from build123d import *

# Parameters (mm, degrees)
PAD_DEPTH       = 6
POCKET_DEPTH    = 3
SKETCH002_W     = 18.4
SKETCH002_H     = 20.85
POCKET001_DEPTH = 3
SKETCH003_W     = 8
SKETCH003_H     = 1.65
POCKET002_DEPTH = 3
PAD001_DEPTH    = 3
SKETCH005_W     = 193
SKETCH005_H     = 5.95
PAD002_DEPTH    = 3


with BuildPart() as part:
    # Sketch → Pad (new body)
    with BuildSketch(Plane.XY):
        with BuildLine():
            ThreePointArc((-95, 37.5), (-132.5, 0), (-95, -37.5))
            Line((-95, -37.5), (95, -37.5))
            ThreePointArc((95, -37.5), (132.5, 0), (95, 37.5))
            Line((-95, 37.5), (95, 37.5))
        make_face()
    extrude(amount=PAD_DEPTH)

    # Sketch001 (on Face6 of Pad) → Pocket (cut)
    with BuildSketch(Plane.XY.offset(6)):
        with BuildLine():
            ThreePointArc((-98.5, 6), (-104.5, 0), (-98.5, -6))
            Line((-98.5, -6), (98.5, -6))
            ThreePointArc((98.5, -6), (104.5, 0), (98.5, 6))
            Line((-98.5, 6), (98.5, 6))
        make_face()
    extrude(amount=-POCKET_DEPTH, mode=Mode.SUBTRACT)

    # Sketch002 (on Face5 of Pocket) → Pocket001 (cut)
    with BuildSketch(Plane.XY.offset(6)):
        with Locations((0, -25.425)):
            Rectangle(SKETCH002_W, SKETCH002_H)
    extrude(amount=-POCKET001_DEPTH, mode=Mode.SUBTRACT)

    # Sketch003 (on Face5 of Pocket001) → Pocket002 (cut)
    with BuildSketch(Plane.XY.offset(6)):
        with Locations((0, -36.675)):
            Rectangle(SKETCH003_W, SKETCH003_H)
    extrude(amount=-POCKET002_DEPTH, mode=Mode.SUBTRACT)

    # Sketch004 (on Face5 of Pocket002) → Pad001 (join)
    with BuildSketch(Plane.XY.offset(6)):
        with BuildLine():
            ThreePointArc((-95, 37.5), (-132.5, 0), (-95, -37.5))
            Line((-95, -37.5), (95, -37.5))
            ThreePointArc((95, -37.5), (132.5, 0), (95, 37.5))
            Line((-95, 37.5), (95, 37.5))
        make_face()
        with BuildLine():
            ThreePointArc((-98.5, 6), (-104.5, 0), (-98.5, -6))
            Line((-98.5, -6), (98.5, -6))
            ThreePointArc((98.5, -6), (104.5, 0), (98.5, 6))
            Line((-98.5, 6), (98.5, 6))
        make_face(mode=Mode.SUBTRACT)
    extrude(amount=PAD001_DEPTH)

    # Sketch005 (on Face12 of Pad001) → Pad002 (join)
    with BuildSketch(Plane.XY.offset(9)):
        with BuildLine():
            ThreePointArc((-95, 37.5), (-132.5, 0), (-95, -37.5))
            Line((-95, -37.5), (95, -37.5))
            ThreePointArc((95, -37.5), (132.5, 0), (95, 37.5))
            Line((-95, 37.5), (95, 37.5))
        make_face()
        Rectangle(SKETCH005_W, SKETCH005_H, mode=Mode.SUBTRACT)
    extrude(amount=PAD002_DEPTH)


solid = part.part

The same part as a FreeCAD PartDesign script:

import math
import FreeCAD as App
import Part
import Sketcher

V = App.Vector
Q = App.Units.Quantity

doc = App.newDocument("Part")
body = doc.addObject("PartDesign::Body", "Body")

# Sketch on XY plane
sketch1 = doc.addObject("Sketcher::SketchObject", "Sketch")
body.addObject(sketch1)
sketch1.AttachmentSupport = (doc.XY_Plane, [""])
sketch1.MapMode = "FlatFace"
sketch1.addGeometry([
    Part.ArcOfCircle(Part.Circle(V(-95, 0, 0), V(0, 0, 1), 37.5), math.radians(90), math.radians(270)),
    Part.LineSegment(V(-95, -37.5, 0), V(95, -37.5, 0)),
    Part.ArcOfCircle(Part.Circle(V(95, 0, 0), V(0, 0, 1), 37.5), math.radians(-90), math.radians(90)),
    Part.LineSegment(V(95, 37.5, 0), V(-95, 37.5, 0)),
], False)
sketch1.addConstraint([
    Sketcher.Constraint("Tangent", 0, 2, 1, 1),
    Sketcher.Constraint("Tangent", 1, 2, 2, 1),
    Sketcher.Constraint("Tangent", 2, 2, 3, 1),
    Sketcher.Constraint("Tangent", 3, 2, 0, 1),
    Sketcher.Constraint("Horizontal", 1),
    Sketcher.Constraint("Horizontal", 3),
    Sketcher.Constraint("Symmetric", 0, 3, 2, 3, -1, 1),
    Sketcher.Constraint("Radius", 0, Q("37.5 mm")),
    Sketcher.Constraint("DistanceX", 1, 1, 1, 2, Q("190 mm")),
])
pad1 = doc.addObject("PartDesign::Pad", "Pad")
body.addObject(pad1)
pad1.Profile = sketch1
pad1.Length = 6

# Sketch on XY plane
sketch2 = doc.addObject("Sketcher::SketchObject", "Sketch001")
body.addObject(sketch2)
sketch2.AttachmentSupport = (doc.XY_Plane, [""])
sketch2.MapMode = "FlatFace"
sketch2.AttachmentOffset = App.Placement(V(0, 0, 6), App.Rotation())
sketch2.addGeometry([
    Part.ArcOfCircle(Part.Circle(V(-98.5, 0, 0), V(0, 0, 1), 6), math.radians(90), math.radians(270)),
    Part.LineSegment(V(-98.5, -6, 0), V(98.5, -6, 0)),
    Part.ArcOfCircle(Part.Circle(V(98.5, 0, 0), V(0, 0, 1), 6), math.radians(-90), math.radians(90)),
    Part.LineSegment(V(98.5, 6, 0), V(-98.5, 6, 0)),
], False)
sketch2.addConstraint([
    Sketcher.Constraint("Tangent", 0, 2, 1, 1),
    Sketcher.Constraint("Tangent", 1, 2, 2, 1),
    Sketcher.Constraint("Tangent", 2, 2, 3, 1),
    Sketcher.Constraint("Tangent", 3, 2, 0, 1),
    Sketcher.Constraint("Horizontal", 1),
    Sketcher.Constraint("Horizontal", 3),
    Sketcher.Constraint("Symmetric", 0, 3, 2, 3, -1, 1),
    Sketcher.Constraint("Radius", 0, Q("6 mm")),
    Sketcher.Constraint("DistanceX", 1, 1, 1, 2, Q("197 mm")),
])
pocket1 = doc.addObject("PartDesign::Pocket", "Pocket")
body.addObject(pocket1)
pocket1.Profile = sketch2
pocket1.Length = 3

# Sketch on XY plane
sketch3 = doc.addObject("Sketcher::SketchObject", "Sketch002")
body.addObject(sketch3)
sketch3.AttachmentSupport = (doc.XY_Plane, [""])
sketch3.MapMode = "FlatFace"
sketch3.AttachmentOffset = App.Placement(V(0, 0, 6), App.Rotation())
sketch3.addGeometry([
    Part.LineSegment(V(-9.2, -15, 0), V(-9.2, -35.85, 0)),
    Part.LineSegment(V(-9.2, -35.85, 0), V(9.2, -35.85, 0)),
    Part.LineSegment(V(9.2, -35.85, 0), V(9.2, -15, 0)),
    Part.LineSegment(V(9.2, -15, 0), V(-9.2, -15, 0)),
], False)
sketch3.addConstraint([
    Sketcher.Constraint("Coincident", 0, 2, 1, 1),
    Sketcher.Constraint("Coincident", 1, 2, 2, 1),
    Sketcher.Constraint("Coincident", 2, 2, 3, 1),
    Sketcher.Constraint("Coincident", 3, 2, 0, 1),
    Sketcher.Constraint("Vertical", 0),
    Sketcher.Constraint("Horizontal", 1),
    Sketcher.Constraint("Vertical", 2),
    Sketcher.Constraint("Horizontal", 3),
    Sketcher.Constraint("DistanceX", 1, 1, 1, 2, Q("18.4 mm")),
    Sketcher.Constraint("DistanceY", 2, 2, -1, 1, Q("15 mm")),
    Sketcher.Constraint("DistanceY", 0, 2, 0, 1, Q("20.85 mm")),
    Sketcher.Constraint("DistanceX", 0, 2, -1, 1, Q("9.2 mm")),
])
pocket2 = doc.addObject("PartDesign::Pocket", "Pocket001")
body.addObject(pocket2)
pocket2.Profile = sketch3
pocket2.Length = 3

# Sketch on XY plane
sketch4 = doc.addObject("Sketcher::SketchObject", "Sketch003")
body.addObject(sketch4)
sketch4.AttachmentSupport = (doc.XY_Plane, [""])
sketch4.MapMode = "FlatFace"
sketch4.AttachmentOffset = App.Placement(V(0, 0, 6), App.Rotation())
sketch4.addGeometry([
    Part.LineSegment(V(-4, -35.85, 0), V(-4, -37.5, 0)),
    Part.LineSegment(V(-4, -37.5, 0), V(4, -37.5, 0)),
    Part.LineSegment(V(4, -37.5, 0), V(4, -35.85, 0)),
    Part.LineSegment(V(4, -35.85, 0), V(-4, -35.85, 0)),
], False)
sketch4.addConstraint([
    Sketcher.Constraint("Coincident", 0, 2, 1, 1),
    Sketcher.Constraint("Coincident", 1, 2, 2, 1),
    Sketcher.Constraint("Coincident", 2, 2, 3, 1),
    Sketcher.Constraint("Coincident", 3, 2, 0, 1),
    Sketcher.Constraint("Vertical", 0),
    Sketcher.Constraint("Horizontal", 1),
    Sketcher.Constraint("Vertical", 2),
    Sketcher.Constraint("Horizontal", 3),
    Sketcher.Constraint("DistanceX", 1, 1, 1, 2, Q("8 mm")),
    Sketcher.Constraint("DistanceX", 0, 2, -1, 1, Q("4 mm")),
    Sketcher.Constraint("DistanceY", 0, 2, 0, 1, Q("1.65 mm")),
    Sketcher.Constraint("DistanceY", 0, 2, -1, 1, Q("37.5 mm")),
])
pocket3 = doc.addObject("PartDesign::Pocket", "Pocket002")
body.addObject(pocket3)
pocket3.Profile = sketch4
pocket3.Length = 3

# Sketch on XY plane
sketch5 = doc.addObject("Sketcher::SketchObject", "Sketch004")
body.addObject(sketch5)
sketch5.AttachmentSupport = (doc.XY_Plane, [""])
sketch5.MapMode = "FlatFace"
sketch5.AttachmentOffset = App.Placement(V(0, 0, 6), App.Rotation())
sketch5.addGeometry([
    Part.ArcOfCircle(Part.Circle(V(-95, 0, 0), V(0, 0, 1), 37.5), math.radians(90), math.radians(270)),  # 0
    Part.LineSegment(V(-95, -37.5, 0), V(95, -37.5, 0)),  # 1
    Part.ArcOfCircle(Part.Circle(V(95, 0, 0), V(0, 0, 1), 37.5), math.radians(-90), math.radians(90)),  # 2
    Part.LineSegment(V(95, 37.5, 0), V(-95, 37.5, 0)),  # 3
    Part.ArcOfCircle(Part.Circle(V(-98.5, 0, 0), V(0, 0, 1), 6), math.radians(90), math.radians(270)),  # 4
    Part.LineSegment(V(-98.5, 6, 0), V(98.5, 6, 0)),  # 5
    Part.ArcOfCircle(Part.Circle(V(98.5, 0, 0), V(0, 0, 1), 6), math.radians(-90), math.radians(90)),  # 6
    Part.LineSegment(V(98.5, -6, 0), V(-98.5, -6, 0)),  # 7
], False)
sketch5.addConstraint([
    Sketcher.Constraint("Tangent", 0, 2, 1, 1),
    Sketcher.Constraint("Tangent", 1, 2, 2, 1),
    Sketcher.Constraint("Tangent", 2, 2, 3, 1),
    Sketcher.Constraint("Tangent", 3, 2, 0, 1),
    Sketcher.Constraint("Tangent", 4, 1, 5, 1),
    Sketcher.Constraint("Tangent", 5, 2, 6, 2),
    Sketcher.Constraint("Tangent", 6, 1, 7, 1),
    Sketcher.Constraint("Tangent", 7, 2, 4, 2),
    Sketcher.Constraint("Horizontal", 1),
    Sketcher.Constraint("Horizontal", 3),
    Sketcher.Constraint("Horizontal", 5),
    Sketcher.Constraint("Horizontal", 7),
    Sketcher.Constraint("Symmetric", 0, 3, 2, 3, -1, 1),
    Sketcher.Constraint("Symmetric", 4, 3, 6, 3, -1, 1),
    Sketcher.Constraint("Radius", 4, Q("6 mm")),
    Sketcher.Constraint("Radius", 0, Q("37.5 mm")),
    Sketcher.Constraint("DistanceX", 1, 1, 1, 2, Q("190 mm")),
    Sketcher.Constraint("DistanceX", 5, 1, 5, 2, Q("197 mm")),
])
pad2 = doc.addObject("PartDesign::Pad", "Pad001")
body.addObject(pad2)
pad2.Profile = sketch5
pad2.Length = 3

# Sketch on XY plane
sketch6 = doc.addObject("Sketcher::SketchObject", "Sketch005")
body.addObject(sketch6)
sketch6.AttachmentSupport = (doc.XY_Plane, [""])
sketch6.MapMode = "FlatFace"
sketch6.AttachmentOffset = App.Placement(V(0, 0, 9), App.Rotation())
sketch6.addGeometry([
    Part.ArcOfCircle(Part.Circle(V(-95, 0, 0), V(0, 0, 1), 37.5), math.radians(90), math.radians(270)),  # 0
    Part.LineSegment(V(-95, -37.5, 0), V(95, -37.5, 0)),  # 1
    Part.ArcOfCircle(Part.Circle(V(95, 0, 0), V(0, 0, 1), 37.5), math.radians(-90), math.radians(90)),  # 2
    Part.LineSegment(V(95, 37.5, 0), V(-95, 37.5, 0)),  # 3
    Part.LineSegment(V(96.5, -2.975, 0), V(-96.5, -2.975, 0)),  # 4
    Part.LineSegment(V(-96.5, -2.975, 0), V(-96.5, 2.975, 0)),  # 5
    Part.LineSegment(V(-96.5, 2.975, 0), V(96.5, 2.975, 0)),  # 6
    Part.LineSegment(V(96.5, 2.975, 0), V(96.5, -2.975, 0)),  # 7
], False)
sketch6.addConstraint([
    Sketcher.Constraint("Tangent", 0, 2, 1, 1),
    Sketcher.Constraint("Tangent", 1, 2, 2, 1),
    Sketcher.Constraint("Tangent", 2, 2, 3, 1),
    Sketcher.Constraint("Tangent", 3, 2, 0, 1),
    Sketcher.Constraint("Coincident", 4, 2, 5, 1),
    Sketcher.Constraint("Coincident", 5, 2, 6, 1),
    Sketcher.Constraint("Coincident", 6, 2, 7, 1),
    Sketcher.Constraint("Coincident", 7, 2, 4, 1),
    Sketcher.Constraint("Horizontal", 1),
    Sketcher.Constraint("Horizontal", 3),
    Sketcher.Constraint("Horizontal", 4),
    Sketcher.Constraint("Vertical", 5),
    Sketcher.Constraint("Horizontal", 6),
    Sketcher.Constraint("Vertical", 7),
    Sketcher.Constraint("Symmetric", 0, 3, 2, 3, -1, 1),
    Sketcher.Constraint("Symmetric", 4, 2, 6, 2, -1, 1),
    Sketcher.Constraint("Radius", 0, Q("37.5 mm")),
    Sketcher.Constraint("DistanceX", 1, 1, 1, 2, Q("190 mm")),
    Sketcher.Constraint("DistanceX", 4, 2, 4, 1, Q("193 mm")),
    Sketcher.Constraint("DistanceY", 5, 1, 5, 2, Q("5.95 mm")),
])
pad3 = doc.addObject("PartDesign::Pad", "Pad002")
body.addObject(pad3)
pad3.Profile = sketch6
pad3.Length = 3

doc.recompute()
